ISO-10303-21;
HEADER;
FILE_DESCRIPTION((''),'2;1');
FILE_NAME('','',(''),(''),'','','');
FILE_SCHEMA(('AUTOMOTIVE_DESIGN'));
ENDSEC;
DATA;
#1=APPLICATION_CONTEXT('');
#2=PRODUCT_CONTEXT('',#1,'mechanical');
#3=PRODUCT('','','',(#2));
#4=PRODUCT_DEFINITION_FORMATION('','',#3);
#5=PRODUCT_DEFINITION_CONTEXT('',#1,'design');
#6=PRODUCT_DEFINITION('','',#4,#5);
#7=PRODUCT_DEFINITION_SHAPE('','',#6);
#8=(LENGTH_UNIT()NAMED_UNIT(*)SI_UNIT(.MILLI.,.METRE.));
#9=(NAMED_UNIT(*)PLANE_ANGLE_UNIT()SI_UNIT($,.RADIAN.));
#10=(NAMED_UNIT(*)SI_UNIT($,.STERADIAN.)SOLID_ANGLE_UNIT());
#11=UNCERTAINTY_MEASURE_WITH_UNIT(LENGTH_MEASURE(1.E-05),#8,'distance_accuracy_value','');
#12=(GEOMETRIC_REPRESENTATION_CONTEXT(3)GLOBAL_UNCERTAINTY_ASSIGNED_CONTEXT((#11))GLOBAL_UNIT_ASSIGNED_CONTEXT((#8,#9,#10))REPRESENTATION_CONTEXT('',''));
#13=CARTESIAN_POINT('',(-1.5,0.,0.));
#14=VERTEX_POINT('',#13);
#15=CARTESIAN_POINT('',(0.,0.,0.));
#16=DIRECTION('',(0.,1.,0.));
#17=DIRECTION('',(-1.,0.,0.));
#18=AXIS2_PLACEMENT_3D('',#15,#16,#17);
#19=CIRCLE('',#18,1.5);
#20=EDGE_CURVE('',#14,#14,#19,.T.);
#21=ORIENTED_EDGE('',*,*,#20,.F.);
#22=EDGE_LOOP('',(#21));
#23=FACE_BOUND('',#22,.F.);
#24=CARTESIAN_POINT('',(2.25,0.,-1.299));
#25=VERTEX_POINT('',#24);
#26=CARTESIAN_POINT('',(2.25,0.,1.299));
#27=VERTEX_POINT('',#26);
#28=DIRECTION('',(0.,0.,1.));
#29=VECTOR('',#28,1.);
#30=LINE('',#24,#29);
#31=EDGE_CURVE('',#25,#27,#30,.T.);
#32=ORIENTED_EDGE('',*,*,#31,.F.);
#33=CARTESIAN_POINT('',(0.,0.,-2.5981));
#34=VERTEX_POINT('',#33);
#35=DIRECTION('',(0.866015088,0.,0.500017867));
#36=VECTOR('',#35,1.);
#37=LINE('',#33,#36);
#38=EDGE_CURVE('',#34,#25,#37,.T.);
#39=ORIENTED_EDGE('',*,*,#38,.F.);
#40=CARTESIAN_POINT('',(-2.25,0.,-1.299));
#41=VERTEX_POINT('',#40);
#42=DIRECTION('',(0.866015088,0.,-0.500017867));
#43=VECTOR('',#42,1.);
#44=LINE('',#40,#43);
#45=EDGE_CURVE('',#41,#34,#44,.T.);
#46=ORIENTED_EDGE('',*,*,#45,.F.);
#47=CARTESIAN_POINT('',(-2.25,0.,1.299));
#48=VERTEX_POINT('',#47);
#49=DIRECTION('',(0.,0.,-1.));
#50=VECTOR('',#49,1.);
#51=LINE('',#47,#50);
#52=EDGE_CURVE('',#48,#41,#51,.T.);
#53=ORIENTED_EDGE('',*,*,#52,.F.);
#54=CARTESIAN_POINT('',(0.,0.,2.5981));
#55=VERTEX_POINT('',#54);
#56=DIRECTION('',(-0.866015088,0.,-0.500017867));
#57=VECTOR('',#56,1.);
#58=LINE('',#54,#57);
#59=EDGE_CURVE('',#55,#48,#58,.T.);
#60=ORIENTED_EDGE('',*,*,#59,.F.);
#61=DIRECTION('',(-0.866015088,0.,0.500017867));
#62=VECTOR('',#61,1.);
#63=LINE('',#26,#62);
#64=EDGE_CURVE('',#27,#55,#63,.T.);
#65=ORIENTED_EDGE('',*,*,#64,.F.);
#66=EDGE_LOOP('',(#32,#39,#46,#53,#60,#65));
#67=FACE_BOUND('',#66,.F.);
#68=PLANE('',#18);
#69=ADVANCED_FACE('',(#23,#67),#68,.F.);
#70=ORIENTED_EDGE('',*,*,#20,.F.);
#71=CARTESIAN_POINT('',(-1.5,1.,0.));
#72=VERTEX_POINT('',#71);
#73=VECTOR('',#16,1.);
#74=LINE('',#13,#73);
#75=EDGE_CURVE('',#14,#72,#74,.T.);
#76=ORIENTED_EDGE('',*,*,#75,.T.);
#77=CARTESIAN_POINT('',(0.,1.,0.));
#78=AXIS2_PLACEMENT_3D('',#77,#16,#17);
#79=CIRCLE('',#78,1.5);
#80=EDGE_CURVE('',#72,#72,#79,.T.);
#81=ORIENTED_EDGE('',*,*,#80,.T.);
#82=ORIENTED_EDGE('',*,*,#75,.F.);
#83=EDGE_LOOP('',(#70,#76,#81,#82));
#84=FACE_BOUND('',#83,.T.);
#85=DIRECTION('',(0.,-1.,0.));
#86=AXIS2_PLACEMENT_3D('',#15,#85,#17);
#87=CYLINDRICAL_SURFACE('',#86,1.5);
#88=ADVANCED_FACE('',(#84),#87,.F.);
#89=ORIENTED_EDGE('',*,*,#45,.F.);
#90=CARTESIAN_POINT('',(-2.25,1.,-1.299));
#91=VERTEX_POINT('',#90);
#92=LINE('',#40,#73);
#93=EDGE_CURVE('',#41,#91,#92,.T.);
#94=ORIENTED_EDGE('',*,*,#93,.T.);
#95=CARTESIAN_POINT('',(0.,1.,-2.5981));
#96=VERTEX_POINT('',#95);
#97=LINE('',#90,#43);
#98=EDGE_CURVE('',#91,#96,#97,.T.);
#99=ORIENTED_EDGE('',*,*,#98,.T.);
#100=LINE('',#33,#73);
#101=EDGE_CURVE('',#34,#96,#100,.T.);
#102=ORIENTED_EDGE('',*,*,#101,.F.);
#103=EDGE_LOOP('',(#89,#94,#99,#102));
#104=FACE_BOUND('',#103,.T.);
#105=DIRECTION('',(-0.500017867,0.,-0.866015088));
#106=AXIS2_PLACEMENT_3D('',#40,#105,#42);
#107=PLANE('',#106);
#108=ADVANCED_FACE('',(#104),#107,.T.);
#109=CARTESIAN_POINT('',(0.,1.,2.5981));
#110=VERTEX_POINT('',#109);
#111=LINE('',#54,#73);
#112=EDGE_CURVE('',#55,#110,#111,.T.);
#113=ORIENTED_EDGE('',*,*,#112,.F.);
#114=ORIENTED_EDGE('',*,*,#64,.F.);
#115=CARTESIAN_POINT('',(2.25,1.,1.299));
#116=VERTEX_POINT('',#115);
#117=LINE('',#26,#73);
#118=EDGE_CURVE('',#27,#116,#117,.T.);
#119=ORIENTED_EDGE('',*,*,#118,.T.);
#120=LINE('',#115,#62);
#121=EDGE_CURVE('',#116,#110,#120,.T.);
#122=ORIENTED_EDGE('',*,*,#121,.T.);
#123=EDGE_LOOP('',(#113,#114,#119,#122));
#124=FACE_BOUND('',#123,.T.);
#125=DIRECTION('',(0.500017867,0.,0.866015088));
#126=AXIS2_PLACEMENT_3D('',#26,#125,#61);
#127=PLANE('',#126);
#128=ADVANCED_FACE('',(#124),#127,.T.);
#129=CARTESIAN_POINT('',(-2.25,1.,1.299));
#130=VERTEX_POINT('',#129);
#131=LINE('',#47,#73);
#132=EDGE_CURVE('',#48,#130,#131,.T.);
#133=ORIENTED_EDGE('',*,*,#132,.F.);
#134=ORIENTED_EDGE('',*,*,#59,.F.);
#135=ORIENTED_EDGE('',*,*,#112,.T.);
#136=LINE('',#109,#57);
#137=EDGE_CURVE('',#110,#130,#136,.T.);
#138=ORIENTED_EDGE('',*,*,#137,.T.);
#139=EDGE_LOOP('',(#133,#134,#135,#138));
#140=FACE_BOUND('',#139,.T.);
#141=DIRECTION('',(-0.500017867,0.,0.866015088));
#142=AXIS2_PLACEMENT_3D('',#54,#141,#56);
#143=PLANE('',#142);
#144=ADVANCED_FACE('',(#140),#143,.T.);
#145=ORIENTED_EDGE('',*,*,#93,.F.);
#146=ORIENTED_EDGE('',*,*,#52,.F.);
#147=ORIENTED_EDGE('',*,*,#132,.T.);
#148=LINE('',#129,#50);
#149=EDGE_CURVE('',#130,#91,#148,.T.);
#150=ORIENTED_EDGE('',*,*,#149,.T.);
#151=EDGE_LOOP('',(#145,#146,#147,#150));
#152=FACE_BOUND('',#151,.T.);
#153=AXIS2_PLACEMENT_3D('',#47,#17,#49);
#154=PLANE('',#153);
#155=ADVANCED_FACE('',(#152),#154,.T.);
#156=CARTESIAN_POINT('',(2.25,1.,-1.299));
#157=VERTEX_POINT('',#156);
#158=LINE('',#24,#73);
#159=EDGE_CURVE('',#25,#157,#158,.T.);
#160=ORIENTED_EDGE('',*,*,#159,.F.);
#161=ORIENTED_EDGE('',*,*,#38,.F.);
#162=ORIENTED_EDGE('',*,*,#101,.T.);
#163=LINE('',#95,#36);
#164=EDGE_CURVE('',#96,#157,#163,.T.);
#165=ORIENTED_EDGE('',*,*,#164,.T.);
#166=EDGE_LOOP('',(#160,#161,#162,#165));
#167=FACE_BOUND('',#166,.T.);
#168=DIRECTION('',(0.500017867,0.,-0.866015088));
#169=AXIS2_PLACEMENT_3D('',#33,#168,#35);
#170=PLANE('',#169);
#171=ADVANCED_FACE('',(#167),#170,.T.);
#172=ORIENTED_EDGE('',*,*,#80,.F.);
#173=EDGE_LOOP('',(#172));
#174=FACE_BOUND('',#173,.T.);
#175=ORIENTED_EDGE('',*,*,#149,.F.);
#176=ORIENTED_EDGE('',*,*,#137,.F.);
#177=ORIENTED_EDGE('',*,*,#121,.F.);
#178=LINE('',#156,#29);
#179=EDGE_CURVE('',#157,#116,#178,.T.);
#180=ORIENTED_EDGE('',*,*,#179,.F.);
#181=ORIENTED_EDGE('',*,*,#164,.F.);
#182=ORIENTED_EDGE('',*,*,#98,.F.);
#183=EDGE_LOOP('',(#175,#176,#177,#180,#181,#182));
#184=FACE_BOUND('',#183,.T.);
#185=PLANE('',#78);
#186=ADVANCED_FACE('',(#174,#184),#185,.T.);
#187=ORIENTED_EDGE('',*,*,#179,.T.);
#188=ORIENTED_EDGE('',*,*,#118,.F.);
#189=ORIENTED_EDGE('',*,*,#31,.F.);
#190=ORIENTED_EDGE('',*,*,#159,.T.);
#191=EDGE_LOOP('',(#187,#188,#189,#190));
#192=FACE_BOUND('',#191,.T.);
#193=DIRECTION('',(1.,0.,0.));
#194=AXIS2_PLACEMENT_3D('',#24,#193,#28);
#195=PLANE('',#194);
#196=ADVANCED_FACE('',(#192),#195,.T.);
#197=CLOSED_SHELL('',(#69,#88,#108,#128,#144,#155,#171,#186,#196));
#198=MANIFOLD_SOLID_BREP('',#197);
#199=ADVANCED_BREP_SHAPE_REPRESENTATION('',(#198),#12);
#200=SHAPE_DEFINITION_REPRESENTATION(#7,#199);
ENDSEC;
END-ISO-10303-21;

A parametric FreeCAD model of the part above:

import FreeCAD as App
import Part
import Sketcher
from FreeCAD import Vector
Q = App.Units.Quantity


def add_polygon(sketch, points):
    """Adds a closed chain of lines whose ends are joined by coincident constraints."""
    first, n = sketch.GeometryCount, len(points)
    for a, b in zip(points, points[1:] + points[:1]):
        sketch.addGeometry(Part.LineSegment(App.Vector(*a, 0), App.Vector(*b, 0)), False)
    for i in range(n):
        sketch.addConstraint(Sketcher.Constraint("Coincident", first + i, 2, first + (i + 1) % n, 1))

doc = App.newDocument("Part")
params = doc.addObject("Spreadsheet::Sheet", "Params")
for row, (alias, value) in enumerate([
    ("sketch1_diameter", "3 mm"),
    ("pad1_length", "1 mm"),
], start=1):
    params.set(f"A{row}", alias)
    params.set(f"B{row}", "=" + value)
    params.setAlias(f"B{row}", alias)

body = doc.addObject("PartDesign::Body", "Body")

sketch1 = body.newObject("Sketcher::SketchObject", "Sketch")
sketch1.AttachmentSupport = (doc.getObject("XZ_Plane"), [""])
sketch1.MapMode = "FlatFace"
add_polygon(sketch1, [(2.25, -1.299), (0, -2.5981), (-2.25, -1.299), (-2.25, 1.299), (0, 2.5981), (2.25, 1.299)])
sketch1.addGeometry(Part.Circle(Vector(0, 0, 0), Vector(0, 0, 1), 1.5), False)
sketch1.addConstraint(Sketcher.Constraint("Vertical", 2))
sketch1.addConstraint(Sketcher.Constraint("Vertical", 5))
sketch1.addConstraint(Sketcher.Constraint("Coincident", 6, 3, -1, 1))
sketch1.addConstraint(Sketcher.Constraint("Symmetric", 0, 2, 3, 2, -1, 1))
sketch1.addConstraint(Sketcher.Constraint("Symmetric", 1, 2, 4, 2, -1, 1))
sketch1.addConstraint(Sketcher.Constraint("PointOnObject", 0, 2, -2))
sketch1.addConstraint(Sketcher.Constraint("Parallel", 0, 3))
sketch1.addConstraint(Sketcher.Constraint("Horizontal", 2, 2, 4, 2))
sketch1.addConstraint(Sketcher.Constraint("Diameter", 6, Q("3 mm")))
sketch1.addConstraint(Sketcher.Constraint("DistanceX", 2, 2, 4, 2, Q("4.5 mm")))
sketch1.addConstraint(Sketcher.Constraint("Angle", 0, Q("-149.9988 deg")))
sketch1.addConstraint(Sketcher.Constraint("DistanceY", 2, 1, 2, 2, Q("2.598 mm")))
sketch1.setExpression("Constraints[14]", "Params.sketch1_diameter")
pad1 = body.newObject("PartDesign::Pad", "Pad")
pad1.Profile = sketch1
pad1.setExpression("Length", "Params.pad1_length")
pad1.Reversed = True

doc.recompute()
